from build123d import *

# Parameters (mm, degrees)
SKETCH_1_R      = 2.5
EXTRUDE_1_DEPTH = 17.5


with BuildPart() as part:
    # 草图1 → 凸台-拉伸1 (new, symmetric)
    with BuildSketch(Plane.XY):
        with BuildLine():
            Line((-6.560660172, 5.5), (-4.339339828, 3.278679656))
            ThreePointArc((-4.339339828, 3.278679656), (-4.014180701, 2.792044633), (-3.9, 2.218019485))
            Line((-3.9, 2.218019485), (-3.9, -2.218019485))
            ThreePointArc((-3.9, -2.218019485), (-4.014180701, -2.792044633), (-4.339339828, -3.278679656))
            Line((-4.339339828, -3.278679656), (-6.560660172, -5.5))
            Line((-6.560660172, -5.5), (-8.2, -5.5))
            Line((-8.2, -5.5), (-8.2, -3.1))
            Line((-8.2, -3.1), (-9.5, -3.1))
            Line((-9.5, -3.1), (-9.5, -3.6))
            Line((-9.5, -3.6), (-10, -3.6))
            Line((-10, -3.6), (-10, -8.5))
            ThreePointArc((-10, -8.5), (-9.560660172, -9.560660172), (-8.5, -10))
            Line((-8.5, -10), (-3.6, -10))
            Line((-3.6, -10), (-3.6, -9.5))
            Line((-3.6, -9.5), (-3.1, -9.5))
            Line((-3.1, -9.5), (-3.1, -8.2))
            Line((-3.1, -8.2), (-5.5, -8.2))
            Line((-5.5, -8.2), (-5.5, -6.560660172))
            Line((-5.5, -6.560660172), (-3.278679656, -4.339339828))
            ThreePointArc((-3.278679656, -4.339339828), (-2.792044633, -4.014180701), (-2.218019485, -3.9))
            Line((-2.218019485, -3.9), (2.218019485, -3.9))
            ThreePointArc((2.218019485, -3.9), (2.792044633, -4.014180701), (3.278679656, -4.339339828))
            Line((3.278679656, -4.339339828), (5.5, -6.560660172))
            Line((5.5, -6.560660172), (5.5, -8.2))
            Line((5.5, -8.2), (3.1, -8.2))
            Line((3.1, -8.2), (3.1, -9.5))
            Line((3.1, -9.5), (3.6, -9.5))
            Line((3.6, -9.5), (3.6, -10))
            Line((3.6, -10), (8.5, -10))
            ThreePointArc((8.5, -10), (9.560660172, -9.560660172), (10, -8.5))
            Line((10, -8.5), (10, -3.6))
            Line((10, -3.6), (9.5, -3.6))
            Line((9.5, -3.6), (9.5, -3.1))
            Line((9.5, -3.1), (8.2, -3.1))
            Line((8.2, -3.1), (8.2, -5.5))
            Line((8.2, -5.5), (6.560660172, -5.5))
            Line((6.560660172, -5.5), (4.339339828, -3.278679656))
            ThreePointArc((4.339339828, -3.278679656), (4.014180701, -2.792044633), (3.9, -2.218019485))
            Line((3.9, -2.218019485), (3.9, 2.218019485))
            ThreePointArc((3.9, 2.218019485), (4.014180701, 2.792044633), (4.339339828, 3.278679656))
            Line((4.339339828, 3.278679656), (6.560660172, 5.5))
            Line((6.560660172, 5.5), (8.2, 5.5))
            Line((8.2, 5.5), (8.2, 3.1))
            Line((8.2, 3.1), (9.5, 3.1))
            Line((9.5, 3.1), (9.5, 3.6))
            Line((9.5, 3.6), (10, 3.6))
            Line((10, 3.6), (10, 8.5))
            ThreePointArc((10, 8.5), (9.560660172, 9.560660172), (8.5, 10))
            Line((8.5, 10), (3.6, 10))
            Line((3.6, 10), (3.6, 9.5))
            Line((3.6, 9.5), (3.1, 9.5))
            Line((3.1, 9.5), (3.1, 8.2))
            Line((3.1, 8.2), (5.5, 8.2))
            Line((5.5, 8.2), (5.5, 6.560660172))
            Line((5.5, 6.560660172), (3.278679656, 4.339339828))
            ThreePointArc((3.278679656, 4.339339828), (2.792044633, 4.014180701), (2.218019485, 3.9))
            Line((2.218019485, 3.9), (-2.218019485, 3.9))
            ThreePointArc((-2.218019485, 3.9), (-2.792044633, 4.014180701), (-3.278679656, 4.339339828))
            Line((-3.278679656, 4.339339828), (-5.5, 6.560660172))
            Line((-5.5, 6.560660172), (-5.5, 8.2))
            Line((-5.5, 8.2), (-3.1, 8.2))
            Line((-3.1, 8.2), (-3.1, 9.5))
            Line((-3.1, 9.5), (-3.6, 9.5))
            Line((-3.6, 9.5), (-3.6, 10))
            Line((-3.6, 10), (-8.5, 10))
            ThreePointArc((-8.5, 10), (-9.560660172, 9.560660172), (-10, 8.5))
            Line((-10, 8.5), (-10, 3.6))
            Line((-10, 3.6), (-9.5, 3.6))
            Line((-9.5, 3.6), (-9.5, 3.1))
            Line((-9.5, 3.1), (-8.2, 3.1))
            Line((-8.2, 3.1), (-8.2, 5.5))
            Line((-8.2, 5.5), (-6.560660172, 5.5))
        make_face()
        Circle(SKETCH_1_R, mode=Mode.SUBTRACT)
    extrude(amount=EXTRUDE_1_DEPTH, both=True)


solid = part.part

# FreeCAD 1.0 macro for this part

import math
import FreeCAD as App
import Part
import Sketcher
from FreeCAD import Vector
Q = App.Units.Quantity

doc = App.newDocument("Part")
body = doc.addObject("PartDesign::Body", "Body")

sketch1 = body.newObject("Sketcher::SketchObject", "Sketch")
sketch1.AttachmentSupport = (doc.getObject("XY_Plane"), [""])
sketch1.MapMode = "FlatFace"
sketch1.addGeometry([
    Part.LineSegment(Vector(-6.6, 5.5, 0), Vector(-4.3, 3.3, 0)),
    Part.ArcOfCircle(Part.Circle(Vector(-5.4, 2.2, 0), Vector(0, 0, 1), 1.5), math.radians(0), math.radians(45)),
    Part.LineSegment(Vector(-3.9, 2.2, 0), Vector(-3.9, -2.2, 0)),
    Part.ArcOfCircle(Part.Circle(Vector(-5.4, -2.2, 0), Vector(0, 0, 1), 1.5), math.radians(-45), math.radians(0)),
    Part.LineSegment(Vector(-4.3, -3.3, 0), Vector(-6.6, -5.5, 0)),
    Part.LineSegment(Vector(-6.6, -5.5, 0), Vector(-8.2, -5.5, 0)),
    Part.LineSegment(Vector(-8.2, -5.5, 0), Vector(-8.2, -3.1, 0)),
    Part.LineSegment(Vector(-8.2, -3.1, 0), Vector(-9.5, -3.1, 0)),
    Part.LineSegment(Vector(-9.5, -3.1, 0), Vector(-9.5, -3.6, 0)),
    Part.LineSegment(Vector(-9.5, -3.6, 0), Vector(-10, -3.6, 0)),
    Part.LineSegment(Vector(-10, -3.6, 0), Vector(-10, -8.5, 0)),
    Part.ArcOfCircle(Part.Circle(Vector(-8.5, -8.5, 0), Vector(0, 0, 1), 1.5), math.radians(180), math.radians(270)),
    Part.LineSegment(Vector(-8.5, -10, 0), Vector(-3.6, -10, 0)),
    Part.LineSegment(Vector(-3.6, -10, 0), Vector(-3.6, -9.5, 0)),
    Part.LineSegment(Vector(-3.6, -9.5, 0), Vector(-3.1, -9.5, 0)),
    Part.LineSegment(Vector(-3.1, -9.5, 0), Vector(-3.1, -8.2, 0)),
    Part.LineSegment(Vector(-3.1, -8.2, 0), Vector(-5.5, -8.2, 0)),
    Part.LineSegment(Vector(-5.5, -8.2, 0), Vector(-5.5, -6.6, 0)),
    Part.LineSegment(Vector(-5.5, -6.6, 0), Vector(-3.3, -4.3, 0)),
    Part.ArcOfCircle(Part.Circle(Vector(-2.2, -5.4, 0), Vector(0, 0, 1), 1.5), math.radians(90), math.radians(135)),
    Part.LineSegment(Vector(-2.2, -3.9, 0), Vector(2.2, -3.9, 0)),
    Part.ArcOfCircle(Part.Circle(Vector(2.2, -5.4, 0), Vector(0, 0, 1), 1.5), math.radians(45), math.radians(90)),
    Part.LineSegment(Vector(3.3, -4.3, 0), Vector(5.5, -6.6, 0)),
    Part.LineSegment(Vector(5.5, -6.6, 0), Vector(5.5, -8.2, 0)),
    Part.LineSegment(Vector(5.5, -8.2, 0), Vector(3.1, -8.2, 0)),
    Part.LineSegment(Vector(3.1, -8.2, 0), Vector(3.1, -9.5, 0)),
    Part.LineSegment(Vector(3.1, -9.5, 0), Vector(3.6, -9.5, 0)),
    Part.LineSegment(Vector(3.6, -9.5, 0), Vector(3.6, -10, 0)),
    Part.LineSegment(Vector(3.6, -10, 0), Vector(8.5, -10, 0)),
    Part.ArcOfCircle(Part.Circle(Vector(8.5, -8.5, 0), Vector(0, 0, 1), 1.5), math.radians(-90), math.radians(0)),
    Part.LineSegment(Vector(10, -8.5, 0), Vector(10, -3.6, 0)),
    Part.LineSegment(Vector(10, -3.6, 0), Vector(9.5, -3.6, 0)),
    Part.LineSegment(Vector(9.5, -3.6, 0), Vector(9.5, -3.1, 0)),
    Part.LineSegment(Vector(9.5, -3.1, 0), Vector(8.2, -3.1, 0)),
    Part.LineSegment(Vector(8.2, -3.1, 0), Vector(8.2, -5.5, 0)),
    Part.LineSegment(Vector(8.2, -5.5, 0), Vector(6.6, -5.5, 0)),
    Part.LineSegment(Vector(6.6, -5.5, 0), Vector(4.3, -3.3, 0)),
    Part.ArcOfCircle(Part.Circle(Vector(5.4, -2.2, 0), Vector(0, 0, 1), 1.5), math.radians(180), math.radians(225)),
    Part.LineSegment(Vector(3.9, -2.2, 0), Vector(3.9, 2.2, 0)),
    Part.ArcOfCircle(Part.Circle(Vector(5.4, 2.2, 0), Vector(0, 0, 1), 1.5), math.radians(135), math.radians(180)),
    Part.LineSegment(Vector(4.3, 3.3, 0), Vector(6.6, 5.5, 0)),
    Part.LineSegment(Vector(6.6, 5.5, 0), Vector(8.2, 5.5, 0)),
    Part.LineSegment(Vector(8.2, 5.5, 0), Vector(8.2, 3.1, 0)),
    Part.LineSegment(Vector(8.2, 3.1, 0), Vector(9.5, 3.1, 0)),
    Part.LineSegment(Vector(9.5, 3.1, 0), Vector(9.5, 3.6, 0)),
    Part.LineSegment(Vector(9.5, 3.6, 0), Vector(10, 3.6, 0)),
    Part.LineSegment(Vector(10, 3.6, 0), Vector(10, 8.5, 0)),
    Part.ArcOfCircle(Part.Circle(Vector(8.5, 8.5, 0), Vector(0, 0, 1), 1.5), math.radians(0), math.radians(90)),
    Part.LineSegment(Vector(8.5, 10, 0), Vector(3.6, 10, 0)),
    Part.LineSegment(Vector(3.6, 10, 0), Vector(3.6, 9.5, 0)),
    Part.LineSegment(Vector(3.6, 9.5, 0), Vector(3.1, 9.5, 0)),
    Part.LineSegment(Vector(3.1, 9.5, 0), Vector(3.1, 8.2, 0)),
    Part.LineSegment(Vector(3.1, 8.2, 0), Vector(5.5, 8.2, 0)),
    Part.LineSegment(Vector(5.5, 8.2, 0), Vector(5.5, 6.6, 0)),
    Part.LineSegment(Vector(5.5, 6.6, 0), Vector(3.3, 4.3, 0)),
    Part.ArcOfCircle(Part.Circle(Vector(2.2, 5.4, 0), Vector(0, 0, 1), 1.5), math.radians(-90), math.radians(-45)),
    Part.LineSegment(Vector(2.2, 3.9, 0), Vector(-2.2, 3.9, 0)),
    Part.ArcOfCircle(Part.Circle(Vector(-2.2, 5.4, 0), Vector(0, 0, 1), 1.5), math.radians(-135), math.radians(-90)),
    Part.LineSegment(Vector(-3.3, 4.3, 0), Vector(-5.5, 6.6, 0)),
    Part.LineSegment(Vector(-5.5, 6.6, 0), Vector(-5.5, 8.2, 0)),
    Part.LineSegment(Vector(-5.5, 8.2, 0), Vector(-3.1, 8.2, 0)),
    Part.LineSegment(Vector(-3.1, 8.2, 0), Vector(-3.1, 9.5, 0)),
    Part.LineSegment(Vector(-3.1, 9.5, 0), Vector(-3.6, 9.5, 0)),
    Part.LineSegment(Vector(-3.6, 9.5, 0), Vector(-3.6, 10, 0)),
    Part.LineSegment(Vector(-3.6, 10, 0), Vector(-8.5, 10, 0)),
    Part.ArcOfCircle(Part.Circle(Vector(-8.5, 8.5, 0), Vector(0, 0, 1), 1.5), math.radians(90), math.radians(180)),
    Part.LineSegment(Vector(-10, 8.5, 0), Vector(-10, 3.6, 0)),
    Part.LineSegment(Vector(-10, 3.6, 0), Vector(-9.5, 3.6, 0)),
    Part.LineSegment(Vector(-9.5, 3.6, 0), Vector(-9.5, 3.1, 0)),
    Part.LineSegment(Vector(-9.5, 3.1, 0), Vector(-8.2, 3.1, 0)),
    Part.LineSegment(Vector(-8.2, 3.1, 0), Vector(-8.2, 5.5, 0)),
    Part.LineSegment(Vector(-8.2, 5.5, 0), Vector(-6.6, 5.5, 0)),
    Part.Circle(Vector(0, 0, 0), Vector(0, 0, 1), 2.5),
], False)
sketch1.addConstraint([
    Sketcher.Constraint("Tangent", 0, 2, 1, 2),
    Sketcher.Constraint("Tangent", 1, 1, 2, 1),
    Sketcher.Constraint("Tangent", 2, 2, 3, 2),
    Sketcher.Constraint("Tangent", 3, 1, 4, 1),
    Sketcher.Constraint("Coincident", 4, 2, 5, 1),
    Sketcher.Constraint("Coincident", 5, 2, 6, 1),
    Sketcher.Constraint("Coincident", 6, 2, 7, 1),
    Sketcher.Constraint("Coincident", 7, 2, 8, 1),
    Sketcher.Constraint("Coincident", 8, 2, 9, 1),
    Sketcher.Constraint("Coincident", 9, 2, 10, 1),
    Sketcher.Constraint("Tangent", 10, 2, 11, 1),
    Sketcher.Constraint("Tangent", 11, 2, 12, 1),
    Sketcher.Constraint("Coincident", 12, 2, 13, 1),
    Sketcher.Constraint("Coincident", 13, 2, 14, 1),
    Sketcher.Constraint("Coincident", 14, 2, 15, 1),
    Sketcher.Constraint("Coincident", 15, 2, 16, 1),
    Sketcher.Constraint("Coincident", 16, 2, 17, 1),
    Sketcher.Constraint("Coincident", 17, 2, 18, 1),
    Sketcher.Constraint("Tangent", 18, 2, 19, 2),
    Sketcher.Constraint("Tangent", 19, 1, 20, 1),
    Sketcher.Constraint("Tangent", 20, 2, 21, 2),
    Sketcher.Constraint("Tangent", 21, 1, 22, 1),
    Sketcher.Constraint("Coincident", 22, 2, 23, 1),
    Sketcher.Constraint("Coincident", 23, 2, 24, 1),
    Sketcher.Constraint("Coincident", 24, 2, 25, 1),
    Sketcher.Constraint("Coincident", 25, 2, 26, 1),
    Sketcher.Constraint("Coincident", 26, 2, 27, 1),
    Sketcher.Constraint("Coincident", 27, 2, 28, 1),
    Sketcher.Constraint("Tangent", 28, 2, 29, 1),
    Sketcher.Constraint("Tangent", 29, 2, 30, 1),
    Sketcher.Constraint("Coincident", 30, 2, 31, 1),
    Sketcher.Constraint("Coincident", 31, 2, 32, 1),
    Sketcher.Constraint("Coincident", 32, 2, 33, 1),
    Sketcher.Constraint("Coincident", 33, 2, 34, 1),
    Sketcher.Constraint("Coincident", 34, 2, 35, 1),
    Sketcher.Constraint("Coincident", 35, 2, 36, 1),
    Sketcher.Constraint("Tangent", 36, 2, 37, 2),
    Sketcher.Constraint("Tangent", 37, 1, 38, 1),
    Sketcher.Constraint("Tangent", 38, 2, 39, 2),
    Sketcher.Constraint("Tangent", 39, 1, 40, 1),
    Sketcher.Constraint("Coincident", 40, 2, 41, 1),
    Sketcher.Constraint("Coincident", 41, 2, 42, 1),
    Sketcher.Constraint("Coincident", 42, 2, 43, 1),
    Sketcher.Constraint("Coincident", 43, 2, 44, 1),
    Sketcher.Constraint("Coincident", 44, 2, 45, 1),
    Sketcher.Constraint("Coincident", 45, 2, 46, 1),
    Sketcher.Constraint("Tangent", 46, 2, 47, 1),
    Sketcher.Constraint("Tangent", 47, 2, 48, 1),
    Sketcher.Constraint("Coincident", 48, 2, 49, 1),
    Sketcher.Constraint("Coincident", 49, 2, 50, 1),
    Sketcher.Constraint("Coincident", 50, 2, 51, 1),
    Sketcher.Constraint("Coincident", 51, 2, 52, 1),
    Sketcher.Constraint("Coincident", 52, 2, 53, 1),
    Sketcher.Constraint("Coincident", 53, 2, 54, 1),
    Sketcher.Constraint("Tangent", 54, 2, 55, 2),
    Sketcher.Constraint("Tangent", 55, 1, 56, 1),
    Sketcher.Constraint("Tangent", 56, 2, 57, 2),
    Sketcher.Constraint("Tangent", 57, 1, 58, 1),
    Sketcher.Constraint("Coincident", 58, 2, 59, 1),
    Sketcher.Constraint("Coincident", 59, 2, 60, 1),
    Sketcher.Constraint("Coincident", 60, 2, 61, 1),
    Sketcher.Constraint("Coincident", 61, 2, 62, 1),
    Sketcher.Constraint("Coincident", 62, 2, 63, 1),
    Sketcher.Constraint("Coincident", 63, 2, 64, 1),
    Sketcher.Constraint("Tangent", 64, 2, 65, 1),
    Sketcher.Constraint("Tangent", 65, 2, 66, 1),
    Sketcher.Constraint("Coincident", 66, 2, 67, 1),
    Sketcher.Constraint("Coincident", 67, 2, 68, 1),
    Sketcher.Constraint("Coincident", 68, 2, 69, 1),
    Sketcher.Constraint("Coincident", 69, 2, 70, 1),
    Sketcher.Constraint("Coincident", 70, 2, 71, 1),
    Sketcher.Constraint("Coincident", 71, 2, 0, 1),
    Sketcher.Constraint("Vertical", 2),
    Sketcher.Constraint("Horizontal", 5),
    Sketcher.Constraint("Vertical", 6),
    Sketcher.Constraint("Horizontal", 7),
    Sketcher.Constraint("Vertical", 8),
    Sketcher.Constraint("Horizontal", 9),
    Sketcher.Constraint("Vertical", 10),
    Sketcher.Constraint("Horizontal", 12),
    Sketcher.Constraint("Vertical", 13),
    Sketcher.Constraint("Horizontal", 14),
    Sketcher.Constraint("Vertical", 15),
    Sketcher.Constraint("Horizontal", 16),
    Sketcher.Constraint("Vertical", 17),
    Sketcher.Constraint("Horizontal", 20),
    Sketcher.Constraint("Vertical", 23),
    Sketcher.Constraint("Horizontal", 24),
    Sketcher.Constraint("Vertical", 25),
    Sketcher.Constraint("Horizontal", 26),
    Sketcher.Constraint("Vertical", 27),
    Sketcher.Constraint("Horizontal", 28),
    Sketcher.Constraint("Vertical", 30),
    Sketcher.Constraint("Horizontal", 31),
    Sketcher.Constraint("Vertical", 32),
    Sketcher.Constraint("Horizontal", 33),
    Sketcher.Constraint("Vertical", 34),
    Sketcher.Constraint("Horizontal", 35),
    Sketcher.Constraint("Vertical", 38),
    Sketcher.Constraint("Horizontal", 41),
    Sketcher.Constraint("Vertical", 42),
    Sketcher.Constraint("Horizontal", 43),
    Sketcher.Constraint("Vertical", 44),
    Sketcher.Constraint("Horizontal", 45),
    Sketcher.Constraint("Vertical", 46),
    Sketcher.Constraint("Horizontal", 48),
    Sketcher.Constraint("Vertical", 49),
    Sketcher.Constraint("Horizontal", 50),
    Sketcher.Constraint("Vertical", 51),
    Sketcher.Constraint("Horizontal", 52),
    Sketcher.Constraint("Vertical", 53),
    Sketcher.Constraint("Horizontal", 56),
    Sketcher.Constraint("Vertical", 59),
    Sketcher.Constraint("Horizontal", 60),
    Sketcher.Constraint("Vertical", 61),
    Sketcher.Constraint("Horizontal", 62),
    Sketcher.Constraint("Vertical", 63),
    Sketcher.Constraint("Horizontal", 64),
    Sketcher.Constraint("Vertical", 66),
    Sketcher.Constraint("Horizontal", 67),
    Sketcher.Constraint("Vertical", 68),
    Sketcher.Constraint("Horizontal", 69),
    Sketcher.Constraint("Vertical", 70),
    Sketcher.Constraint("Horizontal", 71),
    Sketcher.Constraint("Coincident", 72, 3, -1, 1),
    Sketcher.Constraint("Equal", 1, 3),
    Sketcher.Constraint("Equal", 3, 11),
    Sketcher.Constraint("Equal", 11, 19),
    Sketcher.Constraint("Equal", 19, 21),
    Sketcher.Constraint("Equal", 21, 29),
    Sketcher.Constraint("Equal", 29, 37),
    Sketcher.Constraint("Equal", 37, 39),
    Sketcher.Constraint("Equal", 39, 47),
    Sketcher.Constraint("Equal", 47, 55),
    Sketcher.Constraint("Equal", 55, 57),
    Sketcher.Constraint("Equal", 57, 65),
    Sketcher.Constraint("Symmetric", 1, 3, 37, 3, -1, 1),
    Sketcher.Constraint("Symmetric", 11, 3, 47, 3, -1, 1),
    Sketcher.Constraint("Symmetric", 19, 3, 55, 3, -1, 1),
    Sketcher.Constraint("Symmetric", 29, 3, 65, 3, -1, 1),
    Sketcher.Constraint("Symmetric", 3, 1, 39, 1, -1, 1),
    Sketcher.Constraint("Symmetric", 5, 2, 41, 2, -1, 1),
    Sketcher.Constraint("Symmetric", 7, 2, 43, 2, -1, 1),
    Sketcher.Constraint("Symmetric", 13, 2, 49, 2, -1, 1),
    Sketcher.Constraint("Symmetric", 15, 2, 51, 2, -1, 1),
    Sketcher.Constraint("Symmetric", 17, 2, 53, 2, -1, 1),
    Sketcher.Constraint("Symmetric", 21, 1, 57, 1, -1, 1),
    Sketcher.Constraint("Symmetric", 23, 2, 59, 2, -1, 1),
    Sketcher.Constraint("Symmetric", 25, 2, 61, 2, -1, 1),
    Sketcher.Constraint("Symmetric", 31, 2, 67, 2, -1, 1),
    Sketcher.Constraint("Symmetric", 33, 2, 69, 2, -1, 1),
    Sketcher.Constraint("Symmetric", 35, 2, 71, 2, -1, 1),
    Sketcher.Constraint("Symmetric", 11, 3, 29, 3, -2),
    Sketcher.Constraint("Symmetric", 18, 2, 21, 1, -2),
    Sketcher.Constraint("Symmetric", 16, 2, 23, 2, -2),
    Sketcher.Constraint("Symmetric", 14, 2, 25, 2, -2),
    Sketcher.Constraint("Symmetric", 8, 2, 31, 2, -2),
    Sketcher.Constraint("Symmetric", 6, 2, 33, 2, -2),
    Sketcher.Constraint("Symmetric", 4, 2, 35, 2, -2),
    Sketcher.Constraint("Perpendicular", 0, 4),
    Sketcher.Constraint("Parallel", 4, 18),
    Sketcher.Constraint("Perpendicular", 18, 22),
    Sketcher.Constraint("Horizontal", 45, 2, 66, 2),
    Sketcher.Constraint("Vertical", 27, 2, 48, 2),
    Sketcher.Constraint("Vertical", 13, 2, 62, 2),
    Sketcher.Constraint("Equal", 9, 14),
    Sketcher.Constraint("Equal", 56, 2),
    Sketcher.Constraint("Equal", 60, 6),
    Sketcher.Constraint("Equal", 67, 8),
    Sketcher.Constraint("Equal", 64, 10),
    Sketcher.Constraint("Equal", 8, 13),
    Sketcher.Constraint("Equal", 69, 15),
    Sketcher.Constraint("Equal", 71, 17),
    Sketcher.Constraint("Equal", 4, 18),
    Sketcher.Constraint("Diameter", 72, Q("5 mm")),
    Sketcher.Constraint("Radius", 1, Q("1.5 mm")),
    Sketcher.Constraint("DistanceX", 7, 2, 7, 1, Q("1.3 mm")),
    Sketcher.Constraint("DistanceX", 9, 2, 9, 1, Q("0.5 mm")),
    Sketcher.Constraint("DistanceX", 12, 1, 12, 2, Q("4.9 mm")),
    Sketcher.Constraint("DistanceX", 16, 2, 16, 1, Q("2.4 mm")),
    Sketcher.Constraint("DistanceX", 9, 2, -1, 1, Q("10 mm")),
    Sketcher.Constraint("DistanceX", 1, 3, -1, 1, Q("5.4 mm")),
    Sketcher.Constraint("DistanceX", 5, 2, 5, 1, Q("1.63934 mm")),
])
pad1 = body.newObject("PartDesign::Pad", "Pad")
pad1.Profile = sketch1
pad1.Length = 35
pad1.Midplane = True

doc.recompute()
